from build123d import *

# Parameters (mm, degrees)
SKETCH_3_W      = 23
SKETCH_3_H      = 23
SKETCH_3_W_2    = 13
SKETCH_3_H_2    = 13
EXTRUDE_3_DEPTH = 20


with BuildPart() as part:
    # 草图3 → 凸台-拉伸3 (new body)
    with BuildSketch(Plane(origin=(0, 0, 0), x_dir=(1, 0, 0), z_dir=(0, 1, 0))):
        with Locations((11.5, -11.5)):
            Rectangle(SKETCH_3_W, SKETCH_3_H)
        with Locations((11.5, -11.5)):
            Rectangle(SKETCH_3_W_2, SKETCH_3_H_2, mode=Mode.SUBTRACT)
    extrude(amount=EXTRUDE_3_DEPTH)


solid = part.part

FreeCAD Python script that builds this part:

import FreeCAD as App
import Part
import Sketcher

V = App.Vector


def add_polygon(sketch, points):
    """Adds a closed chain of lines whose ends are joined by coincident constraints."""
    first, n = sketch.GeometryCount, len(points)
    for a, b in zip(points, points[1:] + points[:1]):
        sketch.addGeometry(Part.LineSegment(App.Vector(*a, 0), App.Vector(*b, 0)), False)
    for i in range(n):
        sketch.addConstraint(Sketcher.Constraint("Coincident", first + i, 2, first + (i + 1) % n, 1))

doc = App.newDocument("Part")
body = doc.addObject("PartDesign::Body", "Body")

sketch1 = body.newObject("Sketcher::SketchObject", "Sketch")
sketch1.AttachmentSupport = (doc.getObject("XZ_Plane"), [""])
sketch1.MapMode = "FlatFace"
add_polygon(sketch1, [(0, 0), (0, 23), (23, 23), (23, 0)])
add_polygon(sketch1, [(18, 18), (5, 18), (5, 5), (18, 5)])
sketch1.addConstraint([
    Sketcher.Constraint("Vertical", 0),
    Sketcher.Constraint("Horizontal", 1),
    Sketcher.Constraint("Vertical", 2),
    Sketcher.Constraint("Horizontal", 3),
    Sketcher.Constraint("Horizontal", 4),
    Sketcher.Constraint("Vertical", 5),
    Sketcher.Constraint("Horizontal", 6),
    Sketcher.Constraint("Vertical", 7),
    Sketcher.Constraint("Coincident", 3, 2, -1, 1),
    Sketcher.Constraint("Equal", 3, 0),
    Sketcher.Constraint("Equal", 6, 5),
    Sketcher.Constraint("DistanceX", 1, 1, 1, 2, 23.0),
    Sketcher.Constraint("DistanceX", 4, 2, 4, 1, 13.0),
    Sketcher.Constraint("DistanceX", -1, 1, 4, 2, 5.0),
    Sketcher.Constraint("DistanceY", -1, 1, 4, 2, 18.0),
])
pad1 = body.newObject("PartDesign::Pad", "Pad")
pad1.Profile = sketch1
pad1.Length = 20
pad1.Reversed = True

doc.recompute()
